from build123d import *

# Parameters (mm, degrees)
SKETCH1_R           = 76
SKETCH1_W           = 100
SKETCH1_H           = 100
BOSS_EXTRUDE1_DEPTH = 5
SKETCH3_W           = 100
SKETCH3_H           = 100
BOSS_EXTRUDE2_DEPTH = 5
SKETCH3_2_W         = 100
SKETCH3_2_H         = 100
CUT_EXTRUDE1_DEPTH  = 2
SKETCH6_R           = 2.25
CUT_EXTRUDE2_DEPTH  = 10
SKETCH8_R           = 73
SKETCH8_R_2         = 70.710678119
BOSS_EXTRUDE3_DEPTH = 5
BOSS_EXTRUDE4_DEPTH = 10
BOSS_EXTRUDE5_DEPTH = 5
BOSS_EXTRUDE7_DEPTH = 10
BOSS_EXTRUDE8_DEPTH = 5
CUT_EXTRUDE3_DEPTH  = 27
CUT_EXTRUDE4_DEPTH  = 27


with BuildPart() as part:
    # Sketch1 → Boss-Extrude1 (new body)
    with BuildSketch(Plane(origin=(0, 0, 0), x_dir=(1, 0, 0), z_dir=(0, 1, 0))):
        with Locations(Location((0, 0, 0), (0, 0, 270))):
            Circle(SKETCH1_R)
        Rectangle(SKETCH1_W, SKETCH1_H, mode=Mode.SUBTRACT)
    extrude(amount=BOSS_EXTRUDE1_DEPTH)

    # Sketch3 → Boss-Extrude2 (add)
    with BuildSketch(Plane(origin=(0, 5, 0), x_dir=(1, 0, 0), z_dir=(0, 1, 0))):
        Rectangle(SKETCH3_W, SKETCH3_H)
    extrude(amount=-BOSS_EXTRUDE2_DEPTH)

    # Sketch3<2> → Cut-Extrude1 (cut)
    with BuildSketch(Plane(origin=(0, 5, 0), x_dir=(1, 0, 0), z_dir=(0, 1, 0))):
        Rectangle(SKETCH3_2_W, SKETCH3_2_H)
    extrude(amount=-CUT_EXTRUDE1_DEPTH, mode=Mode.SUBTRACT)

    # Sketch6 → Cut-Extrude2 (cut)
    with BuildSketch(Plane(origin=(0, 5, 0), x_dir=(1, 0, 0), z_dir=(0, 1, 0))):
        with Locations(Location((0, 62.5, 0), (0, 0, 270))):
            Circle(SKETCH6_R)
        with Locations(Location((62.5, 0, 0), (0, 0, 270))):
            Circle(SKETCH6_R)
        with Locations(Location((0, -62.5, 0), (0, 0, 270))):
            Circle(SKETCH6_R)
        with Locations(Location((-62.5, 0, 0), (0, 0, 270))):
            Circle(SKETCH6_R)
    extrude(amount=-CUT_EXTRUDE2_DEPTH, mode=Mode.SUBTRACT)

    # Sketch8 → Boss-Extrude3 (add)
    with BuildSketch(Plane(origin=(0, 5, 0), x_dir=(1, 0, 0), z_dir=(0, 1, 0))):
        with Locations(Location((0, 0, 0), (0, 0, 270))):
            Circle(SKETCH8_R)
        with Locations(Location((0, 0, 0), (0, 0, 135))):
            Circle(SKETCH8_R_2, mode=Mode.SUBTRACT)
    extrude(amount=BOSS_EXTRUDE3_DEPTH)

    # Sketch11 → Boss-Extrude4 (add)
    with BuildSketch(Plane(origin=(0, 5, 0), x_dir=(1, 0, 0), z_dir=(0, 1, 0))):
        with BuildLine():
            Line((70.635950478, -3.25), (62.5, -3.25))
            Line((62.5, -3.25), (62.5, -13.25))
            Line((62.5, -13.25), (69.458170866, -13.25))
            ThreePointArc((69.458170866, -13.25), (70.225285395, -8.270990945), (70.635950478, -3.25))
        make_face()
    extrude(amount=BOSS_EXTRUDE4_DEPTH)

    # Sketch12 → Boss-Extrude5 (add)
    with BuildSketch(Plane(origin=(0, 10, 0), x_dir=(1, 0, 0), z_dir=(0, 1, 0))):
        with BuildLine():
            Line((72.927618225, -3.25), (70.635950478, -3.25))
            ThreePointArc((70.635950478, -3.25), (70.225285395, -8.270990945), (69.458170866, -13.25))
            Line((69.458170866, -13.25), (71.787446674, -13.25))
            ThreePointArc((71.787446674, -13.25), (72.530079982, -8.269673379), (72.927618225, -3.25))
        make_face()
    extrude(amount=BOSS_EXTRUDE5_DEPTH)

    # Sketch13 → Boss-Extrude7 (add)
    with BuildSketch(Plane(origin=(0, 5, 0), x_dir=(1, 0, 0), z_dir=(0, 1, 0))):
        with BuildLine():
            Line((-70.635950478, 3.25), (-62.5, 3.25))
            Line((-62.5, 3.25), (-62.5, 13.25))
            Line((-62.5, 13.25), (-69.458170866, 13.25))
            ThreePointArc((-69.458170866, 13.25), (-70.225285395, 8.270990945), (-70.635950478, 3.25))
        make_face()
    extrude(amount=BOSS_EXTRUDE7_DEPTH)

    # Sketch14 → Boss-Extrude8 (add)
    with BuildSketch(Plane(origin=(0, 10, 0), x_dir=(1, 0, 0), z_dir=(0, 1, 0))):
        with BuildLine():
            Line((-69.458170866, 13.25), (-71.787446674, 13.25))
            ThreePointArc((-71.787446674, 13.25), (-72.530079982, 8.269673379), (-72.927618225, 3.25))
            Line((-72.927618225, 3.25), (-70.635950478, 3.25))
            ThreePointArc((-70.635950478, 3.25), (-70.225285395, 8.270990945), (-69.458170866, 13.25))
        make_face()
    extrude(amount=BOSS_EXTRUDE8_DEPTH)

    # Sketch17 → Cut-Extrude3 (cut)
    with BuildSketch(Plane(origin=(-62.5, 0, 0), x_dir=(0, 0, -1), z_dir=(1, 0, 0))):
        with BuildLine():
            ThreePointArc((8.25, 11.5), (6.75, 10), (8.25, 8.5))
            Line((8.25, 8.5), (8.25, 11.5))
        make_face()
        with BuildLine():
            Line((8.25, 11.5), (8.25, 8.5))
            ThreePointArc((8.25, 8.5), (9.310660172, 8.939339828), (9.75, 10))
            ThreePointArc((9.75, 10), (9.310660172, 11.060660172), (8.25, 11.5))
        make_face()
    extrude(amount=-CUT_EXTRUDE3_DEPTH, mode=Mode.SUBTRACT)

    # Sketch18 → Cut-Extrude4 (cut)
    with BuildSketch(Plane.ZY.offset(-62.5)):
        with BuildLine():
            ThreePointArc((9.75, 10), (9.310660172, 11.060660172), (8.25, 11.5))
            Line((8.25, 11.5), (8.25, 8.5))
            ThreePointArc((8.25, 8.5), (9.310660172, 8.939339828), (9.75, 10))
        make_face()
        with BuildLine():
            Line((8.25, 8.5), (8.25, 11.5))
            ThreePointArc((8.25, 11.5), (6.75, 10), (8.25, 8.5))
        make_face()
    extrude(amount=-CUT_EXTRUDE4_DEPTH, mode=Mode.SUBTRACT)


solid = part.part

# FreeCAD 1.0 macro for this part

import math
import FreeCAD as App
import Part
import Sketcher

V = App.Vector

doc = App.newDocument("Part")
body = doc.addObject("PartDesign::Body", "Body")

sketch1 = body.newObject("Sketcher::SketchObject", "Sketch")
sketch1.AttachmentSupport = (doc.getObject("XZ_Plane"), [""])
sketch1.MapMode = "FlatFace"
sketch1.addGeometry([
    Part.Circle(V(0, 0, 0), V(0, 0, 1), 76),
    Part.LineSegment(V(50, 50, 0), V(-50, 50, 0)),
    Part.LineSegment(V(-50, 50, 0), V(-50, -50, 0)),
    Part.LineSegment(V(-50, -50, 0), V(50, -50, 0)),
    Part.LineSegment(V(50, -50, 0), V(50, 50, 0)),
], False)
sketch1.addConstraint([
    Sketcher.Constraint("Coincident", 1, 2, 2, 1),
    Sketcher.Constraint("Coincident", 2, 2, 3, 1),
    Sketcher.Constraint("Coincident", 3, 2, 4, 1),
    Sketcher.Constraint("Coincident", 4, 2, 1, 1),
    Sketcher.Constraint("Horizontal", 1),
    Sketcher.Constraint("Vertical", 2),
    Sketcher.Constraint("Horizontal", 3),
    Sketcher.Constraint("Vertical", 4),
    Sketcher.Constraint("Coincident", 0, 3, -1, 1),
    Sketcher.Constraint("Symmetric", 1, 2, 3, 2, -1, 1),
    Sketcher.Constraint("Equal", 3, 2),
    Sketcher.Constraint("Diameter", 0, 152.0),
    Sketcher.Constraint("DistanceX", 1, 2, 1, 1, 100.0),
])
pad1 = body.newObject("PartDesign::Pad", "Pad")
pad1.Profile = sketch1
pad1.Length = 5
pad1.Reversed = True

sketch2 = body.newObject("Sketcher::SketchObject", "Sketch001")
sketch2.AttachmentSupport = (doc.getObject("XZ_Plane"), [""])
sketch2.MapMode = "FlatFace"
sketch2.AttachmentOffset = App.Placement(V(0, 0, -5), App.Rotation())
sketch2.addGeometry([
    Part.LineSegment(V(-50, -50, 0), V(-50, 50, 0)),
    Part.LineSegment(V(-50, 50, 0), V(50, 50, 0)),
    Part.LineSegment(V(50, 50, 0), V(50, -50, 0)),
    Part.LineSegment(V(50, -50, 0), V(-50, -50, 0)),
], False)
sketch2.addConstraint([
    Sketcher.Constraint("Coincident", 0, 2, 1, 1),
    Sketcher.Constraint("Coincident", 1, 2, 2, 1),
    Sketcher.Constraint("Coincident", 2, 2, 3, 1),
    Sketcher.Constraint("Coincident", 3, 2, 0, 1),
    Sketcher.Constraint("Vertical", 0),
    Sketcher.Constraint("Horizontal", 1),
    Sketcher.Constraint("Vertical", 2),
    Sketcher.Constraint("Horizontal", 3),
    Sketcher.Constraint("Symmetric", 0, 2, 2, 2, -1, 1),
    Sketcher.Constraint("Equal", 3, 0),
    Sketcher.Constraint("DistanceX", 1, 1, 1, 2, 100.0),
])
pad2 = body.newObject("PartDesign::Pad", "Pad001")
pad2.Profile = sketch2
pad2.Length = 5

sketch3 = body.newObject("Sketcher::SketchObject", "Sketch002")
sketch3.AttachmentSupport = (doc.getObject("XZ_Plane"), [""])
sketch3.MapMode = "FlatFace"
sketch3.AttachmentOffset = App.Placement(V(0, 0, -5), App.Rotation())
sketch3.addGeometry([
    Part.LineSegment(V(-50, -50, 0), V(-50, 50, 0)),
    Part.LineSegment(V(-50, 50, 0), V(50, 50, 0)),
    Part.LineSegment(V(50, 50, 0), V(50, -50, 0)),
    Part.LineSegment(V(50, -50, 0), V(-50, -50, 0)),
], False)
sketch3.addConstraint([
    Sketcher.Constraint("Coincident", 0, 2, 1, 1),
    Sketcher.Constraint("Coincident", 1, 2, 2, 1),
    Sketcher.Constraint("Coincident", 2, 2, 3, 1),
    Sketcher.Constraint("Coincident", 3, 2, 0, 1),
    Sketcher.Constraint("Vertical", 0),
    Sketcher.Constraint("Horizontal", 1),
    Sketcher.Constraint("Vertical", 2),
    Sketcher.Constraint("Horizontal", 3),
    Sketcher.Constraint("Symmetric", 0, 2, 2, 2, -1, 1),
    Sketcher.Constraint("Equal", 3, 0),
    Sketcher.Constraint("DistanceX", 1, 1, 1, 2, 100.0),
])
pocket1 = body.newObject("PartDesign::Pocket", "Pocket")
pocket1.Profile = sketch3
pocket1.Length = 2
pocket1.Reversed = True

sketch4 = body.newObject("Sketcher::SketchObject", "Sketch003")
sketch4.AttachmentSupport = (doc.getObject("XZ_Plane"), [""])
sketch4.MapMode = "FlatFace"
sketch4.AttachmentOffset = App.Placement(V(0, 0, -5), App.Rotation())
sketch4.addGeometry([
    Part.Circle(V(0, -62.5, 0), V(0, 0, 1), 2.2),
    Part.Circle(V(62.5, 0, 0), V(0, 0, 1), 2.2),
    Part.Circle(V(0, 62.5, 0), V(0, 0, 1), 2.2),
    Part.Circle(V(-62.5, 0, 0), V(0, 0, 1), 2.2),
], False)
sketch4.addConstraint([
    Sketcher.Constraint("Equal", 0, 1),
    Sketcher.Constraint("Equal", 1, 2),
    Sketcher.Constraint("Equal", 2, 3),
    Sketcher.Constraint("Symmetric", 0, 3, 2, 3, -1, 1),
    Sketcher.Constraint("Symmetric", 1, 3, 3, 3, -1, 1),
    Sketcher.Constraint("PointOnObject", 0, 3, -2),
    Sketcher.Constraint("PointOnObject", 1, 3, -1),
    Sketcher.Constraint("Diameter", 0, 4.5),
    Sketcher.Constraint("DistanceY", 0, 3, 2, 3, 125.0),
    Sketcher.Constraint("DistanceX", 3, 3, 1, 3, 125.0),
])
pocket2 = body.newObject("PartDesign::Pocket", "Pocket001")
pocket2.Profile = sketch4
pocket2.Length = 10
pocket2.Reversed = True

sketch5 = body.newObject("Sketcher::SketchObject", "Sketch004")
sketch5.AttachmentSupport = (doc.getObject("XZ_Plane"), [""])
sketch5.MapMode = "FlatFace"
sketch5.AttachmentOffset = App.Placement(V(0, 0, -5), App.Rotation())
sketch5.addGeometry([
    Part.Circle(V(0, 0, 0), V(0, 0, 1), 73),
    Part.Circle(V(0, 0, 0), V(0, 0, 1), 71),
], False)
sketch5.addConstraint([
    Sketcher.Constraint("Coincident", 0, 3, -1, 1),
    Sketcher.Constraint("Coincident", 1, 3, -1, 1),
    Sketcher.Constraint("Diameter", 0, 146.0),
    Sketcher.Constraint("Diameter", 1, 141.421356),
])
pad3 = body.newObject("PartDesign::Pad", "Pad002")
pad3.Profile = sketch5
pad3.Length = 5
pad3.Reversed = True

sketch6 = body.newObject("Sketcher::SketchObject", "Sketch005")
sketch6.AttachmentSupport = (doc.getObject("XZ_Plane"), [""])
sketch6.MapMode = "FlatFace"
sketch6.AttachmentOffset = App.Placement(V(0, 0, -5), App.Rotation())
sketch6.addGeometry([
    Part.LineSegment(V(71, 3, 0), V(62, 3, 0)),
    Part.LineSegment(V(62, 3, 0), V(62, 13, 0)),
    Part.LineSegment(V(62, 13, 0), V(69, 13, 0)),
    Part.ArcOfCircle(Part.Circle(V(0, 0, 0), V(0, 0, 1), 71), math.radians(2.63), math.radians(10.8)),
], False)
sketch6.addConstraint([
    Sketcher.Constraint("Coincident", 0, 2, 1, 1),
    Sketcher.Constraint("Coincident", 1, 2, 2, 1),
    Sketcher.Constraint("Coincident", 2, 2, 3, 2),
    Sketcher.Constraint("Coincident", 3, 1, 0, 1),
    Sketcher.Constraint("Horizontal", 0),
    Sketcher.Constraint("Vertical", 1),
    Sketcher.Constraint("Horizontal", 2),
    Sketcher.Constraint("Coincident", 3, 3, -1, 1),
    Sketcher.Constraint("DistanceY", 1, 1, 1, 2, 10.0),
    Sketcher.Constraint("DistanceX", -1, 1, 0, 2, 62.5),
    Sketcher.Constraint("DistanceY", -1, 1, 0, 2, 3.25),
    Sketcher.Constraint("Radius", 3, 70.710678),
])
pad4 = body.newObject("PartDesign::Pad", "Pad003")
pad4.Profile = sketch6
pad4.Length = 10
pad4.Reversed = True

sketch7 = body.newObject("Sketcher::SketchObject", "Sketch006")
sketch7.AttachmentSupport = (doc.getObject("XZ_Plane"), [""])
sketch7.MapMode = "FlatFace"
sketch7.AttachmentOffset = App.Placement(V(0, 0, -10), App.Rotation())
sketch7.addGeometry([
    Part.LineSegment(V(72.9, 3.2, 0), V(70.6, 3.2, 0)),
    Part.ArcOfCircle(Part.Circle(V(0, 0, 0), V(0, 0, 1), 70.7), math.radians(2.63), math.radians(10.8)),
    Part.LineSegment(V(69.5, 13.2, 0), V(71.8, 13.2, 0)),
    Part.ArcOfCircle(Part.Circle(V(0, 0, 0), V(0, 0, 1), 73), math.radians(2.55), math.radians(10.46)),
], False)
sketch7.addConstraint([
    Sketcher.Constraint("Coincident", 0, 2, 1, 1),
    Sketcher.Constraint("Coincident", 1, 2, 2, 1),
    Sketcher.Constraint("Coincident", 2, 2, 3, 2),
    Sketcher.Constraint("Coincident", 3, 1, 0, 1),
    Sketcher.Constraint("Horizontal", 0),
    Sketcher.Constraint("Horizontal", 2),
    Sketcher.Constraint("Coincident", 1, 3, -1, 1),
    Sketcher.Constraint("Coincident", 3, 3, -1, 1),
    Sketcher.Constraint("Radius", 3, 73.0),
    Sketcher.Constraint("DistanceY", 0, 2, 1, 2, 10.0),
    Sketcher.Constraint("DistanceY", -1, 1, 0, 2, 3.25),
    Sketcher.Constraint("Radius", 1, 70.710678),
])
pad5 = body.newObject("PartDesign::Pad", "Pad004")
pad5.Profile = sketch7
pad5.Length = 5
pad5.Reversed = True

sketch8 = body.newObject("Sketcher::SketchObject", "Sketch007")
sketch8.AttachmentSupport = (doc.getObject("XZ_Plane"), [""])
sketch8.MapMode = "FlatFace"
sketch8.AttachmentOffset = App.Placement(V(0, 0, -5), App.Rotation())
sketch8.addGeometry([
    Part.LineSegment(V(-71, -3, 0), V(-62, -3, 0)),
    Part.LineSegment(V(-62, -3, 0), V(-62, -13, 0)),
    Part.LineSegment(V(-62, -13, 0), V(-69, -13, 0)),
    Part.ArcOfCircle(Part.Circle(V(0, 0, 0), V(0, 0, 1), 71), math.radians(-177.37), math.radians(-169.2)),
], False)
sketch8.addConstraint([
    Sketcher.Constraint("Coincident", 0, 2, 1, 1),
    Sketcher.Constraint("Coincident", 1, 2, 2, 1),
    Sketcher.Constraint("Coincident", 2, 2, 3, 2),
    Sketcher.Constraint("Coincident", 3, 1, 0, 1),
    Sketcher.Constraint("Horizontal", 0),
    Sketcher.Constraint("Vertical", 1),
    Sketcher.Constraint("Horizontal", 2),
    Sketcher.Constraint("Coincident", 3, 3, -1, 1),
    Sketcher.Constraint("DistanceY", 1, 2, 1, 1, 10.0),
    Sketcher.Constraint("DistanceX", 0, 2, -1, 1, 62.5),
    Sketcher.Constraint("DistanceY", 0, 2, -1, 1, 3.25),
    Sketcher.Constraint("Radius", 3, 70.710678),
])
pad6 = body.newObject("PartDesign::Pad", "Pad005")
pad6.Profile = sketch8
pad6.Length = 10
pad6.Reversed = True

sketch9 = body.newObject("Sketcher::SketchObject", "Sketch008")
sketch9.AttachmentSupport = (doc.getObject("XZ_Plane"), [""])
sketch9.MapMode = "FlatFace"
sketch9.AttachmentOffset = App.Placement(V(0, 0, -10), App.Rotation())
sketch9.addGeometry([
    Part.LineSegment(V(-69.5, -13.2, 0), V(-71.8, -13.2, 0)),
    Part.ArcOfCircle(Part.Circle(V(0, 0, 0), V(0, 0, 1), 73), math.radians(-177.45), math.radians(-169.54)),
    Part.LineSegment(V(-72.9, -3.2, 0), V(-70.6, -3.2, 0)),
    Part.ArcOfCircle(Part.Circle(V(0, 0, 0), V(0, 0, 1), 70.7), math.radians(-177.37), math.radians(-169.2)),
], False)
sketch9.addConstraint([
    Sketcher.Constraint("Coincident", 0, 2, 1, 2),
    Sketcher.Constraint("Coincident", 1, 1, 2, 1),
    Sketcher.Constraint("Coincident", 2, 2, 3, 1),
    Sketcher.Constraint("Coincident", 3, 2, 0, 1),
    Sketcher.Constraint("Horizontal", 0),
    Sketcher.Constraint("Horizontal", 2),
    Sketcher.Constraint("Coincident", 1, 3, -1, 1),
    Sketcher.Constraint("Coincident", 3, 3, -1, 1),
    Sketcher.Constraint("Radius", 1, 73.0),
    Sketcher.Constraint("DistanceY", 0, 2, 1, 1, 10.0),
    Sketcher.Constraint("DistanceY", 0, 2, -1, 1, 13.25),
    Sketcher.Constraint("Radius", 3, 70.710678),
])
pad7 = body.newObject("PartDesign::Pad", "Pad006")
pad7.Profile = sketch9
pad7.Length = 5
pad7.Reversed = True

sketch10 = body.newObject("Sketcher::SketchObject", "Sketch009")
sketch10.AttachmentSupport = (doc.getObject("YZ_Plane"), [""])
sketch10.MapMode = "FlatFace"
sketch10.AttachmentOffset = App.Placement(V(0, 0, -62.5), App.Rotation())
sketch10.addGeometry([
    Part.ArcOfCircle(Part.Circle(V(10, -8.2, 0), V(0, 0, 1), 1.5), math.radians(0), math.radians(180)),
    Part.ArcOfCircle(Part.Circle(V(10, -8.3, 0), V(0, 0, 1), 1.5), math.radians(180), math.radians(270)),
    Part.ArcOfCircle(Part.Circle(V(10, -8.3, 0), V(0, 0, 1), 1.5), math.radians(-90), math.radians(0)),
], False)
sketch10.addConstraint([
    Sketcher.Constraint("Tangent", 0, 2, 1, 1),
    Sketcher.Constraint("Tangent", 1, 2, 2, 1),
    Sketcher.Constraint("Tangent", 2, 2, 0, 1),
    Sketcher.Constraint("Horizontal", 2, 3, 0, 2),
    Sketcher.Constraint("Horizontal", 0, 2, 2, 2),
    Sketcher.Constraint("Vertical", 2, 3, 1, 2),
    Sketcher.Constraint("Radius", 0, 1.5),
    Sketcher.Constraint("DistanceX", -1, 1, 0, 3, 10.0),
    Sketcher.Constraint("DistanceY", 0, 3, -1, 1, 8.25),
])
pocket3 = body.newObject("PartDesign::Pocket", "Pocket002")
pocket3.Profile = sketch10
pocket3.Length = 27

sketch11 = body.newObject("Sketcher::SketchObject", "Sketch010")
sketch11.AttachmentSupport = (doc.getObject("YZ_Plane"), [""])
sketch11.MapMode = "FlatFace"
sketch11.AttachmentOffset = App.Placement(V(0, 0, 62.5), App.Rotation())
sketch11.addGeometry([
    Part.ArcOfCircle(Part.Circle(V(10, 8.3, 0), V(0, 0, 1), 1.5), math.radians(0), math.radians(90)),
    Part.ArcOfCircle(Part.Circle(V(10, 8.2, 0), V(0, 0, 1), 1.5), math.radians(180), math.radians(360)),
    Part.ArcOfCircle(Part.Circle(V(10, 8.3, 0), V(0, 0, 1), 1.5), math.radians(90), math.radians(180)),
], False)
sketch11.addConstraint([
    Sketcher.Constraint("Tangent", 0, 1, 1, 2),
    Sketcher.Constraint("Tangent", 1, 1, 2, 2),
    Sketcher.Constraint("Tangent", 2, 1, 0, 2),
    Sketcher.Constraint("Horizontal", 2, 3, 0, 1),
    Sketcher.Constraint("Horizontal", 0, 1, 1, 1),
    Sketcher.Constraint("Vertical", 1, 3, 2, 1),
    Sketcher.Constraint("Radius", 0, 1.5),
    Sketcher.Constraint("DistanceX", -1, 1, 0, 3, 10.0),
    Sketcher.Constraint("DistanceY", -1, 1, 0, 3, 8.25),
])
pocket4 = body.newObject("PartDesign::Pocket", "Pocket003")
pocket4.Profile = sketch11
pocket4.Length = 27
pocket4.Reversed = True

doc.recompute()
